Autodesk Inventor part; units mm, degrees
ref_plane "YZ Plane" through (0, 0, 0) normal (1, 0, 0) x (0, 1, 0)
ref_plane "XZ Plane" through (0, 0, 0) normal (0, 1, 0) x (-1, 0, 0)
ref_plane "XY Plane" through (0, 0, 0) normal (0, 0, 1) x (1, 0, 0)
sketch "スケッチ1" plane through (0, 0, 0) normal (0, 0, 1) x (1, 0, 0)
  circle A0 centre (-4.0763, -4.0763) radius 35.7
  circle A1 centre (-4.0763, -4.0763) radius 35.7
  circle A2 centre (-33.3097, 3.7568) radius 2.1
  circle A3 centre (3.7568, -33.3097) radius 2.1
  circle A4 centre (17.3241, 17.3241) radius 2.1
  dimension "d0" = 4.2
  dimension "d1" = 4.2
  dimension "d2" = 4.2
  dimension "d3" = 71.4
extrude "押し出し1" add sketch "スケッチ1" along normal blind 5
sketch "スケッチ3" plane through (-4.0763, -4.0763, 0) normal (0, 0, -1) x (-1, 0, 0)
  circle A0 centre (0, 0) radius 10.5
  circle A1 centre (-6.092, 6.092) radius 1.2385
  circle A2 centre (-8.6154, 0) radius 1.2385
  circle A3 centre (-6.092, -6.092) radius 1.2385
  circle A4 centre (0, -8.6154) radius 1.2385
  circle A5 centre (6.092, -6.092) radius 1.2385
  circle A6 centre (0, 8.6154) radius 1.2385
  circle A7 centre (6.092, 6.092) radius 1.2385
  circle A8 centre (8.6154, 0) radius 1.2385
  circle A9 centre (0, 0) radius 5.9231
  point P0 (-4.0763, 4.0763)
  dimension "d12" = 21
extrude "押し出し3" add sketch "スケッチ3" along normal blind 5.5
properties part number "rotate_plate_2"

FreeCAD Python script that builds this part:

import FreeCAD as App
import Part
import Sketcher

doc = App.newDocument("Part")
params = doc.addObject("Spreadsheet::Sheet", "Params")
for row, (alias, value) in enumerate([
    ("sketch1_diameter", "71.4 mm"),
    ("sketch1_diameter2", "4.2 mm"),
    ("pad1_length", "5 mm"),
    ("sketch2_diameter", "21 mm"),
    ("pad2_length", "5.5 mm"),
], start=1):
    params.set(f"A{row}", alias)
    params.set(f"B{row}", "=" + value)
    params.setAlias(f"B{row}", alias)

body = doc.addObject("PartDesign::Body", "Body")

sketch1 = doc.addObject("Sketcher::SketchObject", "Sketch")
body.addObject(sketch1)
sketch1.AttachmentSupport = (doc.XY_Plane, [""])
sketch1.MapMode = "FlatFace"
sketch1.addGeometry(Part.Circle(App.Vector(-4.1, -4.1, 0), App.Vector(0, 0, 1), 35.7), False)
sketch1.addGeometry(Part.Circle(App.Vector(3.8, -33.3, 0), App.Vector(0, 0, 1), 2.1), False)
sketch1.addGeometry(Part.Circle(App.Vector(-33.3, 3.8, 0), App.Vector(0, 0, 1), 2.1), False)
sketch1.addGeometry(Part.Circle(App.Vector(17.3, 17.3, 0), App.Vector(0, 0, 1), 2.1), False)
sketch1.addConstraint(Sketcher.Constraint("Equal", 1, 2))
sketch1.addConstraint(Sketcher.Constraint("Equal", 2, 3))
sketch1.addConstraint(Sketcher.Constraint("Diameter", 0, 71.4))
sketch1.addConstraint(Sketcher.Constraint("Diameter", 1, 4.2))
sketch1.addConstraint(Sketcher.Constraint("DistanceX", -1, 1, 3, 3, 17.324))
sketch1.addConstraint(Sketcher.Constraint("DistanceY", -1, 1, 3, 3, 17.324))
sketch1.addConstraint(Sketcher.Constraint("DistanceX", 0, 3, 1, 3, 7.833))
sketch1.addConstraint(Sketcher.Constraint("DistanceY", 0, 3, 2, 3, 7.833))
sketch1.addConstraint(Sketcher.Constraint("DistanceX", 0, 3, -1, 1, 4.0763))
sketch1.addConstraint(Sketcher.Constraint("DistanceY", 0, 3, -1, 1, 4.0763))
sketch1.addConstraint(Sketcher.Constraint("DistanceY", 1, 3, -1, 1, 33.3097))
sketch1.addConstraint(Sketcher.Constraint("DistanceX", 2, 3, -1, 1, 33.3097))
sketch1.setExpression("Constraints[2]", "Params.sketch1_diameter")
sketch1.setExpression("Constraints[3]", "Params.sketch1_diameter2")
pad1 = doc.addObject("PartDesign::Pad", "Pad")
body.addObject(pad1)
pad1.Profile = sketch1
pad1.setExpression("Length", "Params.pad1_length")

sketch2 = doc.addObject("Sketcher::SketchObject", "Sketch001")
body.addObject(sketch2)
sketch2.AttachmentSupport = (doc.XY_Plane, [""])
sketch2.MapMode = "FlatFace"
sketch2.addGeometry(Part.Circle(App.Vector(-4.1, -4.1, 0), App.Vector(0, 0, 1), 10.5), False)
sketch2.addGeometry(Part.Circle(App.Vector(2, -10.2, 0), App.Vector(0, 0, 1), 1.2), False)
sketch2.addGeometry(Part.Circle(App.Vector(-4.1, -12.7, 0), App.Vector(0, 0, 1), 1.2), False)
sketch2.addGeometry(Part.Circle(App.Vector(-10.2, -10.2, 0), App.Vector(0, 0, 1), 1.2), False)
sketch2.addGeometry(Part.Circle(App.Vector(4.5, -4.1, 0), App.Vector(0, 0, 1), 1.2), False)
sketch2.addGeometry(Part.Circle(App.Vector(2, 2, 0), App.Vector(0, 0, 1), 1.2), False)
sketch2.addGeometry(Part.Circle(App.Vector(-4.1, -4.1, 0), App.Vector(0, 0, 1), 5.9), False)
sketch2.addGeometry(Part.Circle(App.Vector(-12.7, -4.1, 0), App.Vector(0, 0, 1), 1.2), False)
sketch2.addGeometry(Part.Circle(App.Vector(-4.1, 4.5, 0), App.Vector(0, 0, 1), 1.2), False)
sketch2.addGeometry(Part.Circle(App.Vector(-10.2, 2, 0), App.Vector(0, 0, 1), 1.2), False)
sketch2.addConstraint(Sketcher.Constraint("Coincident", 6, 3, 0, 3))
sketch2.addConstraint(Sketcher.Constraint("Equal", 1, 2))
sketch2.addConstraint(Sketcher.Constraint("Equal", 2, 3))
sketch2.addConstraint(Sketcher.Constraint("Equal", 3, 4))
sketch2.addConstraint(Sketcher.Constraint("Equal", 4, 5))
sketch2.addConstraint(Sketcher.Constraint("Equal", 5, 7))
sketch2.addConstraint(Sketcher.Constraint("Equal", 7, 8))
sketch2.addConstraint(Sketcher.Constraint("Equal", 8, 9))
sketch2.addConstraint(Sketcher.Constraint("Horizontal", 1, 3, 3, 3))
sketch2.addConstraint(Sketcher.Constraint("Horizontal", 0, 3, 4, 3))
sketch2.addConstraint(Sketcher.Constraint("Horizontal", 6, 3, 7, 3))
sketch2.addConstraint(Sketcher.Constraint("Horizontal", 5, 3, 9, 3))
sketch2.addConstraint(Sketcher.Constraint("Vertical", 0, 3, 2, 3))
sketch2.addConstraint(Sketcher.Constraint("Vertical", 1, 3, 5, 3))
sketch2.addConstraint(Sketcher.Constraint("Vertical", 6, 3, 8, 3))
sketch2.addConstraint(Sketcher.Constraint("Vertical", 3, 3, 9, 3))
sketch2.addConstraint(Sketcher.Constraint("Diameter", 0, 21.0))
sketch2.addConstraint(Sketcher.Constraint("Diameter", 1, 2.477))
sketch2.addConstraint(Sketcher.Constraint("Diameter", 6, 11.8462))
sketch2.addConstraint(Sketcher.Constraint("DistanceX", -1, 1, 4, 3, 4.539))
sketch2.addConstraint(Sketcher.Constraint("DistanceY", -1, 1, 8, 3, 4.539))
sketch2.addConstraint(Sketcher.Constraint("DistanceX", 0, 3, 1, 3, 6.092))
sketch2.addConstraint(Sketcher.Constraint("DistanceY", 1, 3, 0, 3, 6.092))
sketch2.addConstraint(Sketcher.Constraint("DistanceX", 3, 3, 2, 3, 6.092))
sketch2.addConstraint(Sketcher.Constraint("DistanceY", 4, 3, 5, 3, 6.092))
sketch2.addConstraint(Sketcher.Constraint("DistanceX", 0, 3, -1, 1, 4.0763))
sketch2.addConstraint(Sketcher.Constraint("DistanceY", 0, 3, -1, 1, 4.0763))
sketch2.addConstraint(Sketcher.Constraint("DistanceY", 2, 3, -1, 1, 12.6917))
sketch2.addConstraint(Sketcher.Constraint("DistanceX", 7, 3, -1, 1, 12.6917))
sketch2.setExpression("Constraints[16]", "Params.sketch2_diameter")
pad2 = doc.addObject("PartDesign::Pad", "Pad001")
body.addObject(pad2)
pad2.Profile = sketch2
pad2.setExpression("Length", "Params.pad2_length")
pad2.Reversed = True

doc.recompute()
